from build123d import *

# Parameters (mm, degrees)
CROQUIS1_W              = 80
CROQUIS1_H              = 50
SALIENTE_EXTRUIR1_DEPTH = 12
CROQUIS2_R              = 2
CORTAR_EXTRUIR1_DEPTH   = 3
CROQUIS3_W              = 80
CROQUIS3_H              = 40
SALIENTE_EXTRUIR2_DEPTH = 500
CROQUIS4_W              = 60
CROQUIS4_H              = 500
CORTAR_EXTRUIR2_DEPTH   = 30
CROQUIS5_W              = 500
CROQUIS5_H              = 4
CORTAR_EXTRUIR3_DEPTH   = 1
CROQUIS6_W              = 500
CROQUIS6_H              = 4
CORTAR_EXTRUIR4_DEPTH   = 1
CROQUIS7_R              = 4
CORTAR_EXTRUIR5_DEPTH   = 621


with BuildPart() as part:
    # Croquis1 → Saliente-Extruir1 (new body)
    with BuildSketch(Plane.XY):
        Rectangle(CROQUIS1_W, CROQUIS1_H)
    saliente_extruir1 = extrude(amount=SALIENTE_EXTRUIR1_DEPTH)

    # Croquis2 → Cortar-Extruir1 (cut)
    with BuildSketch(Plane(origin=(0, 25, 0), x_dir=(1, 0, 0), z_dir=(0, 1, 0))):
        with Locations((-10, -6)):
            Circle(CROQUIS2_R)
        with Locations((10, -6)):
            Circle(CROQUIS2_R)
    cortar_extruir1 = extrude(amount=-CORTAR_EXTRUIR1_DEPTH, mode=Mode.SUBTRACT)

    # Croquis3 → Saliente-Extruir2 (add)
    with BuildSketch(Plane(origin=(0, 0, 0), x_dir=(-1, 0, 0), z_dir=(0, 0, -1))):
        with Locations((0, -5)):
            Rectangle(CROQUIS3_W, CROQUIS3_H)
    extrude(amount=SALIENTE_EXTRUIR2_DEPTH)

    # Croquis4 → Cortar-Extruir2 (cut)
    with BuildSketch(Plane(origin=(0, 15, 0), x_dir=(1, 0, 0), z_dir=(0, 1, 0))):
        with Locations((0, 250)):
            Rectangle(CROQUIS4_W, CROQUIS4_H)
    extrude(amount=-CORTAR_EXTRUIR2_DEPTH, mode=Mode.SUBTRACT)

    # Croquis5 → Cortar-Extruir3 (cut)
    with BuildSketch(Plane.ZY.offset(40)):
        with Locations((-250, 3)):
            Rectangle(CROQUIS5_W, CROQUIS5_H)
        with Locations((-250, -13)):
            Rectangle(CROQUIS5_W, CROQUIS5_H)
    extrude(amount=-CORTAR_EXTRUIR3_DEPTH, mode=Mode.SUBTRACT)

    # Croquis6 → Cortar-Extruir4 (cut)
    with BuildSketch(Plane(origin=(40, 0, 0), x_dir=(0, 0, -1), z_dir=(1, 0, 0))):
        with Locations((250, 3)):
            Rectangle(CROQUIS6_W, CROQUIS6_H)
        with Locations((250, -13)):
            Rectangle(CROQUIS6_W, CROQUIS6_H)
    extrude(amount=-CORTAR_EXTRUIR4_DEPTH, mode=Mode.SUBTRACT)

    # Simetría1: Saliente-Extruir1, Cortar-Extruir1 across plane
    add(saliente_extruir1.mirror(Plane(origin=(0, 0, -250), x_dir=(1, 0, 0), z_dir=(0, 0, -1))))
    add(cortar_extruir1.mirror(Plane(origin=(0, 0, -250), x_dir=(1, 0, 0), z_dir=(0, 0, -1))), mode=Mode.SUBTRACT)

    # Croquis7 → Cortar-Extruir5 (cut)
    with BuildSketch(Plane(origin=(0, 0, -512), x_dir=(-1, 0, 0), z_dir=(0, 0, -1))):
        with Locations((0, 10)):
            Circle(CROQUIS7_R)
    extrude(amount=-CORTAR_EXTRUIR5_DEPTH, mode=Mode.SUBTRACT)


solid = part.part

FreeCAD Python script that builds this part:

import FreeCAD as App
import Part
import Sketcher

V = App.Vector

doc = App.newDocument("Part")
body = doc.addObject("PartDesign::Body", "Body")

# Sketch on XY plane
sketch1 = doc.addObject("Sketcher::SketchObject", "Sketch")
body.addObject(sketch1)
sketch1.AttachmentSupport = (doc.XY_Plane, [""])
sketch1.MapMode = "FlatFace"
sketch1.addGeometry([
    Part.LineSegment(V(-40, 25, 0), V(-40, -25, 0)),
    Part.LineSegment(V(-40, -25, 0), V(40, -25, 0)),
    Part.LineSegment(V(40, -25, 0), V(40, 25, 0)),
    Part.LineSegment(V(40, 25, 0), V(-40, 25, 0)),
], False)
sketch1.addConstraint([
    Sketcher.Constraint("Coincident", 0, 2, 1, 1),
    Sketcher.Constraint("Coincident", 1, 2, 2, 1),
    Sketcher.Constraint("Coincident", 2, 2, 3, 1),
    Sketcher.Constraint("Coincident", 3, 2, 0, 1),
    Sketcher.Constraint("Vertical", 0),
    Sketcher.Constraint("Horizontal", 1),
    Sketcher.Constraint("Vertical", 2),
    Sketcher.Constraint("Horizontal", 3),
    Sketcher.Constraint("Symmetric", 0, 2, 2, 2, -1, 1),
    Sketcher.Constraint("DistanceX", 1, 1, 1, 2, 80.0),
    Sketcher.Constraint("DistanceY", 0, 2, 0, 1, 50.0),
])
pad1 = doc.addObject("PartDesign::Pad", "Pad")
body.addObject(pad1)
pad1.Profile = sketch1
pad1.Length = 12

# Sketch on XZ plane
sketch2 = doc.addObject("Sketcher::SketchObject", "Sketch001")
body.addObject(sketch2)
sketch2.AttachmentSupport = (doc.XZ_Plane, [""])
sketch2.MapMode = "FlatFace"
sketch2.AttachmentOffset = App.Placement(V(0, 0, -25), App.Rotation())
sketch2.addGeometry([
    Part.Circle(V(-10, 6, 0), V(0, 0, 1), 2),
    Part.Circle(V(10, 6, 0), V(0, 0, 1), 2),
], False)
sketch2.addConstraint([
    Sketcher.Constraint("Equal", 0, 1),
    Sketcher.Constraint("Symmetric", 0, 3, 1, 3, -2),
    Sketcher.Constraint("Diameter", 0, 4.0),
    Sketcher.Constraint("DistanceX", 0, 3, -1, 1, 10.0),
    Sketcher.Constraint("DistanceY", -1, 1, 0, 3, 6.0),
])
pocket1 = doc.addObject("PartDesign::Pocket", "Pocket")
body.addObject(pocket1)
pocket1.Profile = sketch2
pocket1.Length = 3
pocket1.Reversed = True

# Sketch on XY plane
sketch3 = doc.addObject("Sketcher::SketchObject", "Sketch002")
body.addObject(sketch3)
sketch3.AttachmentSupport = (doc.XY_Plane, [""])
sketch3.MapMode = "FlatFace"
sketch3.addGeometry([
    Part.LineSegment(V(40, 15, 0), V(40, -25, 0)),
    Part.LineSegment(V(40, -25, 0), V(-40, -25, 0)),
    Part.LineSegment(V(-40, -25, 0), V(-40, 15, 0)),
    Part.LineSegment(V(-40, 15, 0), V(40, 15, 0)),
], False)
sketch3.addConstraint([
    Sketcher.Constraint("Coincident", 0, 2, 1, 1),
    Sketcher.Constraint("Coincident", 1, 2, 2, 1),
    Sketcher.Constraint("Coincident", 2, 2, 3, 1),
    Sketcher.Constraint("Coincident", 3, 2, 0, 1),
    Sketcher.Constraint("Vertical", 0),
    Sketcher.Constraint("Horizontal", 1),
    Sketcher.Constraint("Vertical", 2),
    Sketcher.Constraint("Horizontal", 3),
    Sketcher.Constraint("DistanceX", 1, 2, 1, 1, 80.0),
    Sketcher.Constraint("DistanceY", 0, 2, 0, 1, 40.0),
    Sketcher.Constraint("DistanceX", -1, 1, 0, 2, 40.0),
    Sketcher.Constraint("DistanceY", 0, 2, -1, 1, 25.0),
])
pad2 = doc.addObject("PartDesign::Pad", "Pad001")
body.addObject(pad2)
pad2.Profile = sketch3
pad2.Length = 500
pad2.Reversed = True

# Sketch on XZ plane
sketch4 = doc.addObject("Sketcher::SketchObject", "Sketch003")
body.addObject(sketch4)
sketch4.AttachmentSupport = (doc.XZ_Plane, [""])
sketch4.MapMode = "FlatFace"
sketch4.AttachmentOffset = App.Placement(V(0, 0, -15), App.Rotation())
sketch4.addGeometry([
    Part.LineSegment(V(-30, -500, 0), V(-30, 0, 0)),
    Part.LineSegment(V(-30, 0, 0), V(30, 0, 0)),
    Part.LineSegment(V(30, 0, 0), V(30, -500, 0)),
    Part.LineSegment(V(30, -500, 0), V(-30, -500, 0)),
], False)
sketch4.addConstraint([
    Sketcher.Constraint("Coincident", 0, 2, 1, 1),
    Sketcher.Constraint("Coincident", 1, 2, 2, 1),
    Sketcher.Constraint("Coincident", 2, 2, 3, 1),
    Sketcher.Constraint("Coincident", 3, 2, 0, 1),
    Sketcher.Constraint("Vertical", 0),
    Sketcher.Constraint("Horizontal", 1),
    Sketcher.Constraint("Vertical", 2),
    Sketcher.Constraint("Horizontal", 3),
    Sketcher.Constraint("Symmetric", 0, 2, 1, 2, -1, 1),
    Sketcher.Constraint("DistanceX", 1, 1, 1, 2, 60.0),
    Sketcher.Constraint("DistanceY", 0, 1, 0, 2, 500.0),
])
pocket2 = doc.addObject("PartDesign::Pocket", "Pocket001")
body.addObject(pocket2)
pocket2.Profile = sketch4
pocket2.Length = 30
pocket2.Reversed = True

# Sketch on YZ plane
sketch5 = doc.addObject("Sketcher::SketchObject", "Sketch004")
body.addObject(sketch5)
sketch5.AttachmentSupport = (doc.YZ_Plane, [""])
sketch5.MapMode = "FlatFace"
sketch5.AttachmentOffset = App.Placement(V(0, 0, -40), App.Rotation())
sketch5.addGeometry([
    Part.LineSegment(V(5, -500, 0), V(1, -500, 0)),  # 0
    Part.LineSegment(V(1, -500, 0), V(1, 0, 0)),  # 1
    Part.LineSegment(V(1, 0, 0), V(5, 0, 0)),  # 2
    Part.LineSegment(V(5, 0, 0), V(5, -500, 0)),  # 3
    Part.LineSegment(V(-11, -500, 0), V(-15, -500, 0)),  # 4
    Part.LineSegment(V(-15, -500, 0), V(-15, 0, 0)),  # 5
    Part.LineSegment(V(-15, 0, 0), V(-11, 0, 0)),  # 6
    Part.LineSegment(V(-11, 0, 0), V(-11, -500, 0)),  # 7
], False)
sketch5.addConstraint([
    Sketcher.Constraint("Coincident", 0, 2, 1, 1),
    Sketcher.Constraint("Coincident", 1, 2, 2, 1),
    Sketcher.Constraint("Coincident", 2, 2, 3, 1),
    Sketcher.Constraint("Coincident", 3, 2, 0, 1),
    Sketcher.Constraint("Coincident", 4, 2, 5, 1),
    Sketcher.Constraint("Coincident", 5, 2, 6, 1),
    Sketcher.Constraint("Coincident", 6, 2, 7, 1),
    Sketcher.Constraint("Coincident", 7, 2, 4, 1),
    Sketcher.Constraint("Horizontal", 0),
    Sketcher.Constraint("Vertical", 1),
    Sketcher.Constraint("Horizontal", 2),
    Sketcher.Constraint("Vertical", 3),
    Sketcher.Constraint("Horizontal", 4),
    Sketcher.Constraint("Vertical", 5),
    Sketcher.Constraint("Horizontal", 6),
    Sketcher.Constraint("Vertical", 7),
    Sketcher.Constraint("PointOnObject", 1, 2, -1),
    Sketcher.Constraint("PointOnObject", 5, 2, -1),
    Sketcher.Constraint("Horizontal", 3, 2, 4, 2),
    Sketcher.Constraint("Equal", 2, 4),
    Sketcher.Constraint("DistanceX", 0, 2, 0, 1, 4.0),
    Sketcher.Constraint("DistanceY", 1, 1, 1, 2, 500.0),
    Sketcher.Constraint("DistanceX", -1, 1, 0, 2, 1.0),
    Sketcher.Constraint("DistanceX", 4, 2, -1, 1, 15.0),
])
pocket3 = doc.addObject("PartDesign::Pocket", "Pocket002")
body.addObject(pocket3)
pocket3.Profile = sketch5
pocket3.Length = 1
pocket3.Reversed = True

# Sketch on YZ plane
sketch6 = doc.addObject("Sketcher::SketchObject", "Sketch005")
body.addObject(sketch6)
sketch6.AttachmentSupport = (doc.YZ_Plane, [""])
sketch6.MapMode = "FlatFace"
sketch6.AttachmentOffset = App.Placement(V(0, 0, 40), App.Rotation())
sketch6.addGeometry([
    Part.LineSegment(V(5, 0, 0), V(1, 0, 0)),  # 0
    Part.LineSegment(V(1, 0, 0), V(1, -500, 0)),  # 1
    Part.LineSegment(V(1, -500, 0), V(5, -500, 0)),  # 2
    Part.LineSegment(V(5, -500, 0), V(5, 0, 0)),  # 3
    Part.LineSegment(V(-11, 0, 0), V(-15, 0, 0)),  # 4
    Part.LineSegment(V(-15, 0, 0), V(-15, -500, 0)),  # 5
    Part.LineSegment(V(-15, -500, 0), V(-11, -500, 0)),  # 6
    Part.LineSegment(V(-11, -500, 0), V(-11, 0, 0)),  # 7
], False)
sketch6.addConstraint([
    Sketcher.Constraint("Coincident", 0, 2, 1, 1),
    Sketcher.Constraint("Coincident", 1, 2, 2, 1),
    Sketcher.Constraint("Coincident", 2, 2, 3, 1),
    Sketcher.Constraint("Coincident", 3, 2, 0, 1),
    Sketcher.Constraint("Coincident", 4, 2, 5, 1),
    Sketcher.Constraint("Coincident", 5, 2, 6, 1),
    Sketcher.Constraint("Coincident", 6, 2, 7, 1),
    Sketcher.Constraint("Coincident", 7, 2, 4, 1),
    Sketcher.Constraint("Horizontal", 0),
    Sketcher.Constraint("Vertical", 1),
    Sketcher.Constraint("Horizontal", 2),
    Sketcher.Constraint("Vertical", 3),
    Sketcher.Constraint("Horizontal", 4),
    Sketcher.Constraint("Vertical", 5),
    Sketcher.Constraint("Horizontal", 6),
    Sketcher.Constraint("Vertical", 7),
    Sketcher.Constraint("PointOnObject", 0, 2, -1),
    Sketcher.Constraint("PointOnObject", 4, 2, -1),
    Sketcher.Constraint("Horizontal", 2, 2, 5, 2),
    Sketcher.Constraint("Equal", 2, 4),
    Sketcher.Constraint("DistanceX", 0, 2, 0, 1, 4.0),
    Sketcher.Constraint("DistanceY", 1, 2, 1, 1, 500.0),
    Sketcher.Constraint("DistanceX", -1, 1, 0, 2, 1.0),
    Sketcher.Constraint("DistanceX", 4, 2, -1, 1, 15.0),
])
pocket4 = doc.addObject("PartDesign::Pocket", "Pocket003")
body.addObject(pocket4)
pocket4.Profile = sketch6
pocket4.Length = 1
doc.recompute()

datumplane = doc.addObject("PartDesign::Plane", "DatumPlane")
body.addObject(datumplane)
datumplane.AttachmentSupport = (doc.XY_Plane, [""])
datumplane.MapMode = "FlatFace"
datumplane.AttachmentOffset = App.Placement(V(0, 0, -250), App.Rotation())
mirrored = doc.addObject("PartDesign::Mirrored", "Mirrored")
body.addObject(mirrored)
mirrored.Originals = [pad1, pocket1]
mirrored.MirrorPlane = (datumplane, [""])
body.Tip = mirrored

# Sketch on XY plane
sketch7 = doc.addObject("Sketcher::SketchObject", "Sketch006")
body.addObject(sketch7)
sketch7.AttachmentSupport = (doc.XY_Plane, [""])
sketch7.MapMode = "FlatFace"
sketch7.AttachmentOffset = App.Placement(V(0, 0, -512), App.Rotation())
sketch7.addGeometry(Part.Circle(V(0, 10, 0), V(0, 0, 1), 4), False)
sketch7.addConstraint([
    Sketcher.Constraint("PointOnObject", 0, 3, -2),
    Sketcher.Constraint("Diameter", 0, 8.0),
    Sketcher.Constraint("DistanceY", -1, 1, 0, 3, 10.0),
])
pocket5 = doc.addObject("PartDesign::Pocket", "Pocket004")
body.addObject(pocket5)
pocket5.Profile = sketch7
pocket5.Length = 621
pocket5.Reversed = True

doc.recompute()
